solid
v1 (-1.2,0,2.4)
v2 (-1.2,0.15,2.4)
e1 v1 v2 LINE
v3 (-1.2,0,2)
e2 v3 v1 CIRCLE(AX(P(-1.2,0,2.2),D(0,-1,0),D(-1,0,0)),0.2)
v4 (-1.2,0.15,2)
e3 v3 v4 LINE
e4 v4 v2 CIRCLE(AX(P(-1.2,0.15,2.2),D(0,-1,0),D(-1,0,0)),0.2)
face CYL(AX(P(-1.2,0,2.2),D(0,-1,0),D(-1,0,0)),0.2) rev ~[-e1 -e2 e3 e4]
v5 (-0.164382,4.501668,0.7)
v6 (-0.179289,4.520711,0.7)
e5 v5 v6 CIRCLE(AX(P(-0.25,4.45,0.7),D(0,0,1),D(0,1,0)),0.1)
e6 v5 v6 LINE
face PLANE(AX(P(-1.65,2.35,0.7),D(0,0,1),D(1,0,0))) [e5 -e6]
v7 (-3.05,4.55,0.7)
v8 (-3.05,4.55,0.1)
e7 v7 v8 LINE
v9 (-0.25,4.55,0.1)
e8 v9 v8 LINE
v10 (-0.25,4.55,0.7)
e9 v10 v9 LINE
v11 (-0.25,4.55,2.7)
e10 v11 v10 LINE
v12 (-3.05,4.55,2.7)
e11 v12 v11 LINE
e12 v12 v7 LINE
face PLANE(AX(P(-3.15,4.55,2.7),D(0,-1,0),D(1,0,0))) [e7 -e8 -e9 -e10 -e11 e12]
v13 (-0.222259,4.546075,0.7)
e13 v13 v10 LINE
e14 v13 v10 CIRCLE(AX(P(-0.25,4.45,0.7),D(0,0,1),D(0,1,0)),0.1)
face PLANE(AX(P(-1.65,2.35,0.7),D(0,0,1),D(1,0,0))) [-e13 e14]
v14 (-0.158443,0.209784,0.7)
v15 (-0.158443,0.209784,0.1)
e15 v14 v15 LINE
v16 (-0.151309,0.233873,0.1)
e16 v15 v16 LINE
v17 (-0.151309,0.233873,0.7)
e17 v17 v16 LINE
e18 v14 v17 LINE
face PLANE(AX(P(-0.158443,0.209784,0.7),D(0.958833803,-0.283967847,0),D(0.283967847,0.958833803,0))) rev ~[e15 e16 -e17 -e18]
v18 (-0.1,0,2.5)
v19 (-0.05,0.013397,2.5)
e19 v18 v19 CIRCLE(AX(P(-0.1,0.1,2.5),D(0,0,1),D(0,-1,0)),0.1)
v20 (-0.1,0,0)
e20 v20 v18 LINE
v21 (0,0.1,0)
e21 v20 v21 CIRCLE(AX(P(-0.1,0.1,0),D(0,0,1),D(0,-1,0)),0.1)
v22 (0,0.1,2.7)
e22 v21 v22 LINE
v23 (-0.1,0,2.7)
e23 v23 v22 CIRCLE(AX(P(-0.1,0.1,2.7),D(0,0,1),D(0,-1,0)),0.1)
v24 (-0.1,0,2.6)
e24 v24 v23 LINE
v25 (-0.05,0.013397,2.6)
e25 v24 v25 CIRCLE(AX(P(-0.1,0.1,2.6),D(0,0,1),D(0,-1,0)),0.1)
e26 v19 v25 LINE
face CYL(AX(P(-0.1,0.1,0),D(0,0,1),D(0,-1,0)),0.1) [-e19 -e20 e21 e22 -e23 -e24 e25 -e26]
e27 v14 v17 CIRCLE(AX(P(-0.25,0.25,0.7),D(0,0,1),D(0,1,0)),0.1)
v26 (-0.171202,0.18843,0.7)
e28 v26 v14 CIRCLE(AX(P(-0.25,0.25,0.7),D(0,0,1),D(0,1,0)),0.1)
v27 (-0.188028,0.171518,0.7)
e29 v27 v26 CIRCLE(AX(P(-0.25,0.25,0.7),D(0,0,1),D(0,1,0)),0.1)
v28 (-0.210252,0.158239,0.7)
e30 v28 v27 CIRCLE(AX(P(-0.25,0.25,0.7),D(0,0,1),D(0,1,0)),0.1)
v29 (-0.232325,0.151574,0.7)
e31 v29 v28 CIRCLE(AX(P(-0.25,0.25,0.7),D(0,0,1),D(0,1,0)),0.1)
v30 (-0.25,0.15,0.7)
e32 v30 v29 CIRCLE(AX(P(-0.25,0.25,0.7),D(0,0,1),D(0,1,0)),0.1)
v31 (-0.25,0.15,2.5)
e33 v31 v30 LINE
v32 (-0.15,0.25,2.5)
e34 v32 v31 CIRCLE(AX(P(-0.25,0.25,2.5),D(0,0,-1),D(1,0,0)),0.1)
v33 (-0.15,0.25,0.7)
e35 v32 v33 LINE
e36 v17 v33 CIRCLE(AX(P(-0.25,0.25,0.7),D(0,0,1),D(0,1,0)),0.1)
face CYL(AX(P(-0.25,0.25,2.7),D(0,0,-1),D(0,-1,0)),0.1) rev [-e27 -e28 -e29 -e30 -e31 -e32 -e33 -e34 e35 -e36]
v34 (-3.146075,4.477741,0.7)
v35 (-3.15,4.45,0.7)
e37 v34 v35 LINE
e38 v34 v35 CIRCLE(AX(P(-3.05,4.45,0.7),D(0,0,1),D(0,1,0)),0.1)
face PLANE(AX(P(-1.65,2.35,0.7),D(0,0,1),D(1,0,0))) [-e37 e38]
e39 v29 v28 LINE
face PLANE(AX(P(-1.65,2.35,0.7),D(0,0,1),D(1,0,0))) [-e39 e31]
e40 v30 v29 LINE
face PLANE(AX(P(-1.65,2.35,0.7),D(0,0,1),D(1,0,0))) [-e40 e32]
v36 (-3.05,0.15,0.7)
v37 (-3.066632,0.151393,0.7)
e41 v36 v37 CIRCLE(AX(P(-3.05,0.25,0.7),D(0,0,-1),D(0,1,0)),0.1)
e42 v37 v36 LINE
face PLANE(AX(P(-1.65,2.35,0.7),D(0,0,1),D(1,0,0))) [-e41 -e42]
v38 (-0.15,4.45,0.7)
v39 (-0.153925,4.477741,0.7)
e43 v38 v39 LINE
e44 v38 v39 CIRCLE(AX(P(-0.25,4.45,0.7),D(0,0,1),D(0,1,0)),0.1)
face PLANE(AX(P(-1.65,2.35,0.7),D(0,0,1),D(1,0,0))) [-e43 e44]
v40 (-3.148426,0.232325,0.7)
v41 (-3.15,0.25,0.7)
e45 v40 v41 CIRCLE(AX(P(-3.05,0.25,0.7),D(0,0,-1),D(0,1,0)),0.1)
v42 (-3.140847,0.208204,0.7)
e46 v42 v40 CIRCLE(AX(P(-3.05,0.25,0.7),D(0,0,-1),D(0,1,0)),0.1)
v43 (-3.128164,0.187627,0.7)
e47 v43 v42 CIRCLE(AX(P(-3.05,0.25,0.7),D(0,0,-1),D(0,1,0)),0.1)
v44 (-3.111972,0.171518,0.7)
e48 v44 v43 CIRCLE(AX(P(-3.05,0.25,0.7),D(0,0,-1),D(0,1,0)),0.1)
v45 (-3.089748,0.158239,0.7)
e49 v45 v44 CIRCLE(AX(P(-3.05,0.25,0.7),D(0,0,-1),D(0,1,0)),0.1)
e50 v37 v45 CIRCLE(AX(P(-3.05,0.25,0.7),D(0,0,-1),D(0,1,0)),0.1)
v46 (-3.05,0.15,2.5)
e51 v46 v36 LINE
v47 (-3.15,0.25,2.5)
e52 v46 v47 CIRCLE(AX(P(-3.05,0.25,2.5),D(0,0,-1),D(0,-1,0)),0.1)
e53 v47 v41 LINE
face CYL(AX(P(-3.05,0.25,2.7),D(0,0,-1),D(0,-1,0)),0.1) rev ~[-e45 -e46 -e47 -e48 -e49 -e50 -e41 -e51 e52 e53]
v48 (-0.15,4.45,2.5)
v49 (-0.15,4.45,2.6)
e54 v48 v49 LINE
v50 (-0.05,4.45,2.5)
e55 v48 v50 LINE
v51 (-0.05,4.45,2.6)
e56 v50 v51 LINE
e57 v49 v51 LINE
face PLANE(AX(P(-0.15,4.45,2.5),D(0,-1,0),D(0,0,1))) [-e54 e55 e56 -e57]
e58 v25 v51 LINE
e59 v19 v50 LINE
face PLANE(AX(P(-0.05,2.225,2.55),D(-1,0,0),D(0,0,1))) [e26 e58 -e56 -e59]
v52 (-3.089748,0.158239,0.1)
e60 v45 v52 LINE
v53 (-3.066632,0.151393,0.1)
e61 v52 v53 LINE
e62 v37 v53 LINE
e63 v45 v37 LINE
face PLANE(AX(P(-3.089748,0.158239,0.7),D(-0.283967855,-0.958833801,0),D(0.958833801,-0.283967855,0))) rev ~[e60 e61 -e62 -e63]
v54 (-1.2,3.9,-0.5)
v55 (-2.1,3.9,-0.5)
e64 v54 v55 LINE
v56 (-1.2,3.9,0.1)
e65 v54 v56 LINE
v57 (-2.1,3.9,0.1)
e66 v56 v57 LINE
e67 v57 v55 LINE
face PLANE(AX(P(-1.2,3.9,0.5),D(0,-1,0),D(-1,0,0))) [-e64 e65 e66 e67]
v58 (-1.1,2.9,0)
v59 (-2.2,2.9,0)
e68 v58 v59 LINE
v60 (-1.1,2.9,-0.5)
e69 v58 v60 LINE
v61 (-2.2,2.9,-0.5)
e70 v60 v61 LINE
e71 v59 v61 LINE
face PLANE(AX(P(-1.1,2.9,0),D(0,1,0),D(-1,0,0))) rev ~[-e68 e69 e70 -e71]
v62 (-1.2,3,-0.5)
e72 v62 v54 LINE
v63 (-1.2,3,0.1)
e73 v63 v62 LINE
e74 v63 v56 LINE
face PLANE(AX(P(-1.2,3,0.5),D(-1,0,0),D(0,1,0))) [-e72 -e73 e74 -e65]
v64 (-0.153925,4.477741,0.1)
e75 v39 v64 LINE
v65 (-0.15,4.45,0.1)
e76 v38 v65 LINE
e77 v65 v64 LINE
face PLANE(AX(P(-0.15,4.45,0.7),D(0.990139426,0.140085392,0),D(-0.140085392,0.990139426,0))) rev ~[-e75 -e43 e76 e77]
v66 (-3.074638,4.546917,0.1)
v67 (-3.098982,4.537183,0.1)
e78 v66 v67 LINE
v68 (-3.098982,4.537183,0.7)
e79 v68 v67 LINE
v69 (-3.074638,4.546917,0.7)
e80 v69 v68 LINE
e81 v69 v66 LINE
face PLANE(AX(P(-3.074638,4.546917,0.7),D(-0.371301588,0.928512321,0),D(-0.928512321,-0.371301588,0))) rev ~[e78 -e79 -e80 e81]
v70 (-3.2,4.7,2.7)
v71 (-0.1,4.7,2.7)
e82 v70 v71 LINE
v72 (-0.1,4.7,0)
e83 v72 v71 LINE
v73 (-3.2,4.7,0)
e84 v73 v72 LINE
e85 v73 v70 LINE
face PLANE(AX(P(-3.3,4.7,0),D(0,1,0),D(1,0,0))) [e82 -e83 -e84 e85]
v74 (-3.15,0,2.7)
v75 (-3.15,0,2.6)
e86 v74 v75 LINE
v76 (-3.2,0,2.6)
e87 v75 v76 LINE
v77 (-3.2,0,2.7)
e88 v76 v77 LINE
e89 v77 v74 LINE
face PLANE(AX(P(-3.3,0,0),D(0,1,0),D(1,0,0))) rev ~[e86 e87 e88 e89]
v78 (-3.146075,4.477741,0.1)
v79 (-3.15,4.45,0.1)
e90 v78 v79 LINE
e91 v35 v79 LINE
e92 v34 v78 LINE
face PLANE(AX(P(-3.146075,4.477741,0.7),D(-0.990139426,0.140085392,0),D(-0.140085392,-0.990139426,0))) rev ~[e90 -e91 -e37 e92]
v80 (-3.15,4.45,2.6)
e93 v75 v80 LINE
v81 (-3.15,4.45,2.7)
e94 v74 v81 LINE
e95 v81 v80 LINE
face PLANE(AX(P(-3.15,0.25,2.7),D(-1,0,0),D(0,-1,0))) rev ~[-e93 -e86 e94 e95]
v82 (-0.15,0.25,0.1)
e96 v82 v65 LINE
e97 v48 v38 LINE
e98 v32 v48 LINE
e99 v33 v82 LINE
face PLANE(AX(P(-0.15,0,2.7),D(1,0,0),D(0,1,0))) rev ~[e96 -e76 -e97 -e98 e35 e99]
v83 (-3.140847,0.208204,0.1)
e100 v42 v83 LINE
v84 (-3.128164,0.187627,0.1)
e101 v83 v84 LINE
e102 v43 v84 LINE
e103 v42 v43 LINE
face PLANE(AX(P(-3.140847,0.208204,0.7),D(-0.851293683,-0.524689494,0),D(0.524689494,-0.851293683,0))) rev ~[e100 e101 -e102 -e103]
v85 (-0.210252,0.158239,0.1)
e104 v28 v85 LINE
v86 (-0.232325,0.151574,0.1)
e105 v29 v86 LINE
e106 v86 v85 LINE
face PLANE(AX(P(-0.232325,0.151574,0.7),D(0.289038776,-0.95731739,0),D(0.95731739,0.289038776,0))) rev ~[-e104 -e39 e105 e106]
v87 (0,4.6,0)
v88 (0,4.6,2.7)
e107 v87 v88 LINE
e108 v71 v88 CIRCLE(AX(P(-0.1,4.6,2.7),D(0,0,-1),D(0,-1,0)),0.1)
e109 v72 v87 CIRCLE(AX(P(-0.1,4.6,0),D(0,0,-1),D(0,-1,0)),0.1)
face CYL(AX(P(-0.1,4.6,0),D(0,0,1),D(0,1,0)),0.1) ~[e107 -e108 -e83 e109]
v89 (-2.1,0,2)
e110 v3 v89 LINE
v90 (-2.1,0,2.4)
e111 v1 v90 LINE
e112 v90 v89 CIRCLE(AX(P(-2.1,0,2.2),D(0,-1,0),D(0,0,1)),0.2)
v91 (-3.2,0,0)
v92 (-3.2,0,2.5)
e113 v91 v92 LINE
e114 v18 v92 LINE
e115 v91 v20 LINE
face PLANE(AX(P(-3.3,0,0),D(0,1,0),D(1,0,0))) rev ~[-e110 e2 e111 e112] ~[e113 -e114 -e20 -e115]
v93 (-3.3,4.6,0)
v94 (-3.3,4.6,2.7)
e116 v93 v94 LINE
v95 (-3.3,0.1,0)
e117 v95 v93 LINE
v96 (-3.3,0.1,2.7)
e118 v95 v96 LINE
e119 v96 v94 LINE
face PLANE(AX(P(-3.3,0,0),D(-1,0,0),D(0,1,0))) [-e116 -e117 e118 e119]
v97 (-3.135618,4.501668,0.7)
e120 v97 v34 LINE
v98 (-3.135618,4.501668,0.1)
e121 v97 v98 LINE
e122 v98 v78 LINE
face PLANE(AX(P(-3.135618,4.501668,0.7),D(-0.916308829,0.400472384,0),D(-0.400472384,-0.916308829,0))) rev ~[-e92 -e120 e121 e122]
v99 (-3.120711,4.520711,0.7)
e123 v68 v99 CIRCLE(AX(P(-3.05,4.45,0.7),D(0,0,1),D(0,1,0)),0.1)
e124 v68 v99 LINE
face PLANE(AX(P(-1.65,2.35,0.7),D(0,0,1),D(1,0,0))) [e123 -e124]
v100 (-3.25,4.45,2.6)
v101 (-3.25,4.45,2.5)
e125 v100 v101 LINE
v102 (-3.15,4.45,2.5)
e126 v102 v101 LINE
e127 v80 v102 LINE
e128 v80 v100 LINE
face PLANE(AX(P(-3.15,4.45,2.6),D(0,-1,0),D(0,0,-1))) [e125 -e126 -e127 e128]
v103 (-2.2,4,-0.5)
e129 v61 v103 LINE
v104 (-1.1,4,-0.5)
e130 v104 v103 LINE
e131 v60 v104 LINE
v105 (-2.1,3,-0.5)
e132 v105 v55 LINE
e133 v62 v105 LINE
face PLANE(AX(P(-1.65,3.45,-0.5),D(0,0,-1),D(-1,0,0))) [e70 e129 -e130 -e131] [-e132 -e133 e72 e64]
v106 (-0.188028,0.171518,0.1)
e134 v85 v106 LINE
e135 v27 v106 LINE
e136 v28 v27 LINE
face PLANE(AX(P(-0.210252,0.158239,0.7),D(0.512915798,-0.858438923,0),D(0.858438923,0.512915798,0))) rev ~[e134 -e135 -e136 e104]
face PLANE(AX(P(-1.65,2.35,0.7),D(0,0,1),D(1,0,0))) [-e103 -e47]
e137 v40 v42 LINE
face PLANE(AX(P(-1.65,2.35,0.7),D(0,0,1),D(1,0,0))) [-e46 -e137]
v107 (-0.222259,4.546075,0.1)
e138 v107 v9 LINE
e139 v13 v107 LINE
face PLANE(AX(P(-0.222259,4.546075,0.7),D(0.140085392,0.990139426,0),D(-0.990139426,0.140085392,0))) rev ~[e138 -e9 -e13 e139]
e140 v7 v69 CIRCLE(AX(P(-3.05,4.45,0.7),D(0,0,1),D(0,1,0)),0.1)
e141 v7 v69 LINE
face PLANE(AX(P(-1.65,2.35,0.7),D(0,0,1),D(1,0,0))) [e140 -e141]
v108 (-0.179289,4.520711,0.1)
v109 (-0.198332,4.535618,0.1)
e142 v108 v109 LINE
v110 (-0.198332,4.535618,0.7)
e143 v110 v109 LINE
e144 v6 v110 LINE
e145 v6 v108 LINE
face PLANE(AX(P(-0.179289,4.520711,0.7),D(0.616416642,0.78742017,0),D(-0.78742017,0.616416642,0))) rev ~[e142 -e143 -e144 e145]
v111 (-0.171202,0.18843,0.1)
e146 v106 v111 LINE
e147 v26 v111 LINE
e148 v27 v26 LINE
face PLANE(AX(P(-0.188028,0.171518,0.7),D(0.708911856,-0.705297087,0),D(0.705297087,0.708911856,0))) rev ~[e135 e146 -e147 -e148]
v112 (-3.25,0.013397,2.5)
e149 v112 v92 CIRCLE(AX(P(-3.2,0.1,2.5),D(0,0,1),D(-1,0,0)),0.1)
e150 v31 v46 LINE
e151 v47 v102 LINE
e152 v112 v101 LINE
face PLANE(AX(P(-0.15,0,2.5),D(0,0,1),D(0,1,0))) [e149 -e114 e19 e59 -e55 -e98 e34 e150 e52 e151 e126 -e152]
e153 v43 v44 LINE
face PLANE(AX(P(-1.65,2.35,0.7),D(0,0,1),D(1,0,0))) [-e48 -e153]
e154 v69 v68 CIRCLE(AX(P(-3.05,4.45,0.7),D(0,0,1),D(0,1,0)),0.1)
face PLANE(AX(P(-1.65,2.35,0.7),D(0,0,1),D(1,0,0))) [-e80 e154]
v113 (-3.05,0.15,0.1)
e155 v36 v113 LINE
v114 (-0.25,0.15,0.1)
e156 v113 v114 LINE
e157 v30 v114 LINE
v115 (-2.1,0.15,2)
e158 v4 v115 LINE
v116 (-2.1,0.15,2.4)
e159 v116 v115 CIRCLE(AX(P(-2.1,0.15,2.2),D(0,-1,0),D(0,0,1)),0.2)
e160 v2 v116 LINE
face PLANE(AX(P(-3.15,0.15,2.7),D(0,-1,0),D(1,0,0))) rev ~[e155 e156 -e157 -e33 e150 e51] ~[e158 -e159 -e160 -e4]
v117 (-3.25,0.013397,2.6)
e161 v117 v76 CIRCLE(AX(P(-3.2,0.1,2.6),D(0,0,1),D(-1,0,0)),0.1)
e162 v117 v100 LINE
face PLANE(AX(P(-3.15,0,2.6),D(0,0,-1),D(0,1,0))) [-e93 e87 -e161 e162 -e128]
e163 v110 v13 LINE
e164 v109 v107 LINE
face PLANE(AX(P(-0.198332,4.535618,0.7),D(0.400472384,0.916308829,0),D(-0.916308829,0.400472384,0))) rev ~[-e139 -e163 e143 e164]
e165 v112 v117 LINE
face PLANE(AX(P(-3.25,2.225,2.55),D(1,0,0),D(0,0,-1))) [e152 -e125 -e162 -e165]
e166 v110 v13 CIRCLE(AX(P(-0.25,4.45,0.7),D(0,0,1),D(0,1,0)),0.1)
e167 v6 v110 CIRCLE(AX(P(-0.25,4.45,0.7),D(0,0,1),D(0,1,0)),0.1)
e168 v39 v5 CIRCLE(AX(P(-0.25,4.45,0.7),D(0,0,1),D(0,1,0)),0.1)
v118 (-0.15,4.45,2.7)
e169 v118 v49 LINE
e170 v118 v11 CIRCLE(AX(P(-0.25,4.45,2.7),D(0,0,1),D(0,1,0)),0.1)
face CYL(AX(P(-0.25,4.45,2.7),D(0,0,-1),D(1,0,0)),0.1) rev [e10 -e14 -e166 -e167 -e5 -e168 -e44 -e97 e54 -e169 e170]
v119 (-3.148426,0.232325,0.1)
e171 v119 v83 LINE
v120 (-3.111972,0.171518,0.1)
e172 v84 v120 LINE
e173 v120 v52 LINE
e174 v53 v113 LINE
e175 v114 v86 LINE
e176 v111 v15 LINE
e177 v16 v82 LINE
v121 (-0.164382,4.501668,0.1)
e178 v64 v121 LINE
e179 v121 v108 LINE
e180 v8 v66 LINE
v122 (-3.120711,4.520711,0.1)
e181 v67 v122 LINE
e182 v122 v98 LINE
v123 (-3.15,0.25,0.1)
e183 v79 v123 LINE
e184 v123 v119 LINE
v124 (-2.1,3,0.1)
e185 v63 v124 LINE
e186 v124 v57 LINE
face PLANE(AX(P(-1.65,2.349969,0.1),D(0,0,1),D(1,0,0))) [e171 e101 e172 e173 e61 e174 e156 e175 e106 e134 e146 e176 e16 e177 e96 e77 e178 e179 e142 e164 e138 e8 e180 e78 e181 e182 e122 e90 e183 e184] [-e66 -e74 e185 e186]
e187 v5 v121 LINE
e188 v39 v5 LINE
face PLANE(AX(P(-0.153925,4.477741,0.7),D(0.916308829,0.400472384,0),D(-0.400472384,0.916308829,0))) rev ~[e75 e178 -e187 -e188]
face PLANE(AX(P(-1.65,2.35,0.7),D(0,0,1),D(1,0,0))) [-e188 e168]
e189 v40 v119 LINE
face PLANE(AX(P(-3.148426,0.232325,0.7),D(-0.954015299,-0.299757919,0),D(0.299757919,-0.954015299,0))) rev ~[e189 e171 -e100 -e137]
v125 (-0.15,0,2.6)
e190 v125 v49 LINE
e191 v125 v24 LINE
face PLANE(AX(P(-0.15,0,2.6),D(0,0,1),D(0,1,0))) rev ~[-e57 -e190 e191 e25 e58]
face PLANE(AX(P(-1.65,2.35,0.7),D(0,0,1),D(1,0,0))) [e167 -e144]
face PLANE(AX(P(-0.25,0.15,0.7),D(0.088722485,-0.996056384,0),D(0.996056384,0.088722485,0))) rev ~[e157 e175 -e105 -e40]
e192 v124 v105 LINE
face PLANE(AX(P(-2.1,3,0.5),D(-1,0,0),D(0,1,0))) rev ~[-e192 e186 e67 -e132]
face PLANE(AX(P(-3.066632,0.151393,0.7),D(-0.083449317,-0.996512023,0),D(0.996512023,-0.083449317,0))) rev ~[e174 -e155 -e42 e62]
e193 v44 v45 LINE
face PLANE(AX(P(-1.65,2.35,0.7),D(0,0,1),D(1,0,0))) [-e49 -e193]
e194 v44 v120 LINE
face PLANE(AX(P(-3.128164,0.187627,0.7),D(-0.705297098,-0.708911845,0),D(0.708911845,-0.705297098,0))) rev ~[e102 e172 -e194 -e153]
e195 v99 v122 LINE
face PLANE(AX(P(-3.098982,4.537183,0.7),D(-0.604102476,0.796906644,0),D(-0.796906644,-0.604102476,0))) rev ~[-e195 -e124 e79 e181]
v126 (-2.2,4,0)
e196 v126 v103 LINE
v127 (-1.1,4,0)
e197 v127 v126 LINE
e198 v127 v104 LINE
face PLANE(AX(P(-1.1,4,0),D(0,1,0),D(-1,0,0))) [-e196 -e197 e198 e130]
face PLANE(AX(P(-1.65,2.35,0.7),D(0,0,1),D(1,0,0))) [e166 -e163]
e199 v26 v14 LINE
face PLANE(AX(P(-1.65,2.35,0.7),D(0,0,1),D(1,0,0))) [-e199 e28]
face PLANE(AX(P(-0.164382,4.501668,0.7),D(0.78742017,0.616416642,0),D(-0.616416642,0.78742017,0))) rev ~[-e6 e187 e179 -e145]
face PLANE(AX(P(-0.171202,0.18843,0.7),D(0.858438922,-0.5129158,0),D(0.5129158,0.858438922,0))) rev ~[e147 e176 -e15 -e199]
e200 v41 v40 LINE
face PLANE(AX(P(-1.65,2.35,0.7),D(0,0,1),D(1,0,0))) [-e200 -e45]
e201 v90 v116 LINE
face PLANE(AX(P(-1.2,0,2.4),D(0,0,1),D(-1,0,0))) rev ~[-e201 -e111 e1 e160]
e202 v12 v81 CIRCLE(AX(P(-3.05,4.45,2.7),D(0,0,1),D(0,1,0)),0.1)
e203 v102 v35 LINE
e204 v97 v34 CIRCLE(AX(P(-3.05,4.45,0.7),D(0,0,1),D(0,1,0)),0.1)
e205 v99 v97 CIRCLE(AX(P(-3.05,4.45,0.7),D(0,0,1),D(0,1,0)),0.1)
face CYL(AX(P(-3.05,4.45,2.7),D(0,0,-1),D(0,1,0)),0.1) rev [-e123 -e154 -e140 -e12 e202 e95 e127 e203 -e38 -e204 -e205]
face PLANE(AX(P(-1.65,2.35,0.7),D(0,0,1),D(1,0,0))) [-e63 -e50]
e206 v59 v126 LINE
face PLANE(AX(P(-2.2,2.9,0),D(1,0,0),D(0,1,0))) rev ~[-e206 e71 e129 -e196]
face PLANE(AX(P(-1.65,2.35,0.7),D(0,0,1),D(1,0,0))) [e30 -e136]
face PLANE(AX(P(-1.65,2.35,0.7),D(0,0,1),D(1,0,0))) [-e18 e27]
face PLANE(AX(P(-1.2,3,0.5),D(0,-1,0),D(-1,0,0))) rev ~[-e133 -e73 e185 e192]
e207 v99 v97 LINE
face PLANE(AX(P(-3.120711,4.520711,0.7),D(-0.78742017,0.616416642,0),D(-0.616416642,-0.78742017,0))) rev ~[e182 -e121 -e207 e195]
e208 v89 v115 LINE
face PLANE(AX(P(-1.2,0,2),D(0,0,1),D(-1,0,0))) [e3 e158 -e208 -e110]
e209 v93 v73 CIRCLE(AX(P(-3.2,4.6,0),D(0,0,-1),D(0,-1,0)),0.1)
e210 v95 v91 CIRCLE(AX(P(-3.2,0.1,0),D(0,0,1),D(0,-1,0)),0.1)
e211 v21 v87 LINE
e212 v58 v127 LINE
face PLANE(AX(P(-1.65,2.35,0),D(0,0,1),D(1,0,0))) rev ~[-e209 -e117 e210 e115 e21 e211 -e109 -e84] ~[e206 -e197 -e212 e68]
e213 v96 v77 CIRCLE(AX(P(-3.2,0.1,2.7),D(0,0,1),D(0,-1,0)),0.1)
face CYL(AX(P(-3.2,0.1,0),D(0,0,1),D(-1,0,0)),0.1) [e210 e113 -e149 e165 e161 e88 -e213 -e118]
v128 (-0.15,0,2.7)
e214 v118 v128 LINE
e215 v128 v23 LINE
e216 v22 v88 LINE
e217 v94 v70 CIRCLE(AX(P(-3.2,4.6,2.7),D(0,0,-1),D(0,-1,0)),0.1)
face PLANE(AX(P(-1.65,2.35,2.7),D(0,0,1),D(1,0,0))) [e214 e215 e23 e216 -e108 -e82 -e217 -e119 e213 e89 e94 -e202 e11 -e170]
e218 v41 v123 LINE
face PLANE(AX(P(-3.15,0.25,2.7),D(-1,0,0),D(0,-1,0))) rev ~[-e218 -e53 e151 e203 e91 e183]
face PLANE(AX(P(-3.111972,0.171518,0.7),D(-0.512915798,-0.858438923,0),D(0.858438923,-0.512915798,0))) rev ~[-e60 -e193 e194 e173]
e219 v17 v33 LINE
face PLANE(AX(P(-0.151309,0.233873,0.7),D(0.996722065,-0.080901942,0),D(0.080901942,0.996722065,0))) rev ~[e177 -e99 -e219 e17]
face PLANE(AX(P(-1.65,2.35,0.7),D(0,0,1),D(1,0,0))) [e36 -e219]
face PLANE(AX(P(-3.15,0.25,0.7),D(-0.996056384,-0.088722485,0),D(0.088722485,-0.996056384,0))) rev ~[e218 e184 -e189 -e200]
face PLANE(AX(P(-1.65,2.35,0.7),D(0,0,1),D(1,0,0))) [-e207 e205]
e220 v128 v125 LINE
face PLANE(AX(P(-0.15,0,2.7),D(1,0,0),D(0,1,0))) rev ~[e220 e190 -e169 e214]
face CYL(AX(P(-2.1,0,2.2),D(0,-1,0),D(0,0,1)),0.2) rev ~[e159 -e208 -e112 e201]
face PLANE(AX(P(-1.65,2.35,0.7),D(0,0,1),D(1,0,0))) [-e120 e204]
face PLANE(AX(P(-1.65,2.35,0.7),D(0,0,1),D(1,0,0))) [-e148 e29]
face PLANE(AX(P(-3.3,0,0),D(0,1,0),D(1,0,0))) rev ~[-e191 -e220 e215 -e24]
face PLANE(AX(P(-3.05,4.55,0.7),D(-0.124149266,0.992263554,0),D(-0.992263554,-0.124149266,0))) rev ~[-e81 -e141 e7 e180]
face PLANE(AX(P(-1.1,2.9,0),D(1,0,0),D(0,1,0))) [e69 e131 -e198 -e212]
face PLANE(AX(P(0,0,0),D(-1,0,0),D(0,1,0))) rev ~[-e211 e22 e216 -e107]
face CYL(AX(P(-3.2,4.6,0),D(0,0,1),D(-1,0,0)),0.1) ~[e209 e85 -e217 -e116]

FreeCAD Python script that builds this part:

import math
import FreeCAD as App
import Part
import Sketcher
from FreeCAD import Vector


def edges_at(feature, points):
    """Names of the edges that pass closest to the given points."""
    edges = feature.Shape.Edges
    near = lambda p: min(range(len(edges)), key=lambda i: edges[i].distToShape(Part.Vertex(*p))[0])
    return sorted({f"Edge{near(p) + 1}" for p in points})

doc = App.newDocument("Part")
body = doc.addObject("PartDesign::Body", "Body")

sketch1 = body.newObject("Sketcher::SketchObject", "Sketch")
sketch1.AttachmentSupport = (doc.getObject("XY_Plane"), [""])
sketch1.MapMode = "FlatFace"
sketch1.addGeometry([
    Part.LineSegment(Vector(-3.3, 4.7, 0), Vector(-3.3, 0, 0)),
    Part.LineSegment(Vector(-3.3, 0, 0), Vector(0, 0, 0)),
    Part.LineSegment(Vector(0, 0, 0), Vector(0, 4.7, 0)),
    Part.LineSegment(Vector(0, 4.7, 0), Vector(-3.3, 4.7, 0)),
], False)
sketch1.addConstraint([
    Sketcher.Constraint("Coincident", 0, 2, 1, 1),
    Sketcher.Constraint("Coincident", 1, 2, 2, 1),
    Sketcher.Constraint("Coincident", 2, 2, 3, 1),
    Sketcher.Constraint("Coincident", 3, 2, 0, 1),
    Sketcher.Constraint("Vertical", 0),
    Sketcher.Constraint("Horizontal", 1),
    Sketcher.Constraint("Vertical", 2),
    Sketcher.Constraint("Horizontal", 3),
    Sketcher.Constraint("Coincident", 1, 2, -1, 1),
    Sketcher.Constraint("DistanceX", 1, 1, 1, 2, 3.3),
    Sketcher.Constraint("DistanceY", 0, 2, 0, 1, 4.7),
])
pad1 = body.newObject("PartDesign::Pad", "Pad")
pad1.Profile = sketch1
pad1.Length = 2.7
doc.recompute()

fillet = body.newObject("PartDesign::Fillet", "Fillet")
fillet.Base = (pad1, edges_at(pad1, [(-3.3, 4.7, 1.35)]))
fillet.Radius = 0.1
doc.recompute()

fillet2 = body.newObject("PartDesign::Fillet", "Fillet001")
fillet2.Base = (fillet, edges_at(fillet, [(0, 0, 1.35), (-3.3, 0, 1.35), (0, 4.7, 1.35)]))
fillet2.Radius = 0.1

sketch2 = body.newObject("Sketcher::SketchObject", "Sketch001")
sketch2.AttachmentSupport = (doc.getObject("XY_Plane"), [""])
sketch2.MapMode = "FlatFace"
sketch2.AttachmentOffset = App.Placement(Vector(0, 0, 2.7), App.Rotation())
sketch2.addGeometry([
    Part.LineSegment(Vector(-3.15, 4.55, 0), Vector(-3.15, 0.15, 0)),
    Part.LineSegment(Vector(-3.15, 0.15, 0), Vector(-0.15, 0.15, 0)),
    Part.LineSegment(Vector(-0.15, 0.15, 0), Vector(-0.15, 4.55, 0)),
    Part.LineSegment(Vector(-0.15, 4.55, 0), Vector(-3.15, 4.55, 0)),
], False)
sketch2.addConstraint([
    Sketcher.Constraint("Coincident", 0, 2, 1, 1),
    Sketcher.Constraint("Coincident", 1, 2, 2, 1),
    Sketcher.Constraint("Coincident", 2, 2, 3, 1),
    Sketcher.Constraint("Coincident", 3, 2, 0, 1),
    Sketcher.Constraint("Vertical", 0),
    Sketcher.Constraint("Horizontal", 1),
    Sketcher.Constraint("Vertical", 2),
    Sketcher.Constraint("Horizontal", 3),
    Sketcher.Constraint("DistanceX", 1, 1, 1, 2, 3.0),
    Sketcher.Constraint("DistanceY", 0, 2, 0, 1, 4.4),
    Sketcher.Constraint("DistanceX", 0, 2, -1, 1, 3.15),
    Sketcher.Constraint("DistanceY", -1, 1, 0, 2, 0.15),
])
pocket1 = body.newObject("PartDesign::Pocket", "Pocket")
pocket1.Profile = sketch2
pocket1.Length = 2
doc.recompute()

fillet3 = body.newObject("PartDesign::Fillet", "Fillet002")
fillet3.Base = (pocket1, edges_at(pocket1, [
    (-0.15, 0.15, 1.7),
    (-3.15, 0.15, 1.7),
    (-3.15, 4.55, 1.7),
    (-0.15, 4.55, 1.7),
]))
fillet3.Radius = 0.1

sketch3 = body.newObject("Sketcher::SketchObject", "Sketch002")
sketch3.AttachmentSupport = (doc.getObject("XY_Plane"), [""])
sketch3.MapMode = "FlatFace"
sketch3.addGeometry([
    Part.LineSegment(Vector(-1.1, 4, 0), Vector(-1.1, 2.9, 0)),
    Part.LineSegment(Vector(-1.1, 2.9, 0), Vector(-2.2, 2.9, 0)),
    Part.LineSegment(Vector(-2.2, 2.9, 0), Vector(-2.2, 4, 0)),
    Part.LineSegment(Vector(-2.2, 4, 0), Vector(-1.1, 4, 0)),
    Part.LineSegment(Vector(-2.1, 3, 0), Vector(-1.2, 3, 0)),
    Part.LineSegment(Vector(-1.2, 3, 0), Vector(-1.2, 3.9, 0)),
    Part.LineSegment(Vector(-1.2, 3.9, 0), Vector(-2.1, 3.9, 0)),
    Part.LineSegment(Vector(-2.1, 3.9, 0), Vector(-2.1, 3, 0)),
], False)
sketch3.addConstraint([
    Sketcher.Constraint("Coincident", 0, 2, 1, 1),
    Sketcher.Constraint("Coincident", 1, 2, 2, 1),
    Sketcher.Constraint("Coincident", 2, 2, 3, 1),
    Sketcher.Constraint("Coincident", 3, 2, 0, 1),
    Sketcher.Constraint("Coincident", 4, 2, 5, 1),
    Sketcher.Constraint("Coincident", 5, 2, 6, 1),
    Sketcher.Constraint("Coincident", 6, 2, 7, 1),
    Sketcher.Constraint("Coincident", 7, 2, 4, 1),
    Sketcher.Constraint("Vertical", 0),
    Sketcher.Constraint("Horizontal", 1),
    Sketcher.Constraint("Vertical", 2),
    Sketcher.Constraint("Horizontal", 3),
    Sketcher.Constraint("Horizontal", 4),
    Sketcher.Constraint("Vertical", 5),
    Sketcher.Constraint("Horizontal", 6),
    Sketcher.Constraint("Vertical", 7),
    Sketcher.Constraint("Equal", 3, 0),
    Sketcher.Constraint("Equal", 6, 5),
    Sketcher.Constraint("DistanceX", 1, 2, 1, 1, 1.1),
    Sketcher.Constraint("DistanceX", 4, 1, 4, 2, 0.9),
    Sketcher.Constraint("DistanceY", -1, 1, 2, 2, 4.0),
    Sketcher.Constraint("DistanceY", -1, 1, 4, 2, 3.0),
    Sketcher.Constraint("DistanceX", 1, 2, 4, 2, 1.0),
    Sketcher.Constraint("DistanceX", 0, 2, -1, 1, 1.1),
])
pad2 = body.newObject("PartDesign::Pad", "Pad001")
pad2.Profile = sketch3
pad2.Length = 0.5
pad2.Reversed = True

sketch4 = body.newObject("Sketcher::SketchObject", "Sketch003")
sketch4.AttachmentSupport = (doc.getObject("XY_Plane"), [""])
sketch4.MapMode = "FlatFace"
sketch4.addGeometry([
    Part.LineSegment(Vector(-1.2, 3.9, 0), Vector(-1.2, 3, 0)),
    Part.LineSegment(Vector(-1.2, 3, 0), Vector(-2.1, 3, 0)),
    Part.LineSegment(Vector(-2.1, 3, 0), Vector(-2.1, 3.9, 0)),
    Part.LineSegment(Vector(-2.1, 3.9, 0), Vector(-1.2, 3.9, 0)),
], False)
sketch4.addConstraint([
    Sketcher.Constraint("Coincident", 0, 2, 1, 1),
    Sketcher.Constraint("Coincident", 1, 2, 2, 1),
    Sketcher.Constraint("Coincident", 2, 2, 3, 1),
    Sketcher.Constraint("Coincident", 3, 2, 0, 1),
    Sketcher.Constraint("Vertical", 0),
    Sketcher.Constraint("Horizontal", 1),
    Sketcher.Constraint("Vertical", 2),
    Sketcher.Constraint("Horizontal", 3),
    Sketcher.Constraint("Equal", 3, 0),
    Sketcher.Constraint("DistanceX", 1, 2, 1, 1, 0.9),
    Sketcher.Constraint("DistanceY", -1, 1, 0, 2, 3.0),
    Sketcher.Constraint("DistanceX", 0, 2, -1, 1, 1.2),
])
pocket2 = body.newObject("PartDesign::Pocket", "Pocket001")
pocket2.Profile = sketch4
pocket2.Length = 0.5
pocket2.Reversed = True

sketch5 = body.newObject("Sketcher::SketchObject", "Sketch004")
sketch5.AttachmentSupport = (doc.getObject("XY_Plane"), [""])
sketch5.MapMode = "FlatFace"
sketch5.AttachmentOffset = App.Placement(Vector(0, 0, 2.7), App.Rotation())
sketch5.addGeometry([
    Part.LineSegment(Vector(-3.15, 0.25, 0), Vector(-3.15, 0, 0)),
    Part.LineSegment(Vector(-3.15, 0, 0), Vector(-0.15, 0, 0)),
    Part.LineSegment(Vector(-0.15, 0, 0), Vector(-0.15, 0.25, 0)),
    Part.LineSegment(Vector(-0.15, 0.25, 0), Vector(-0.153597, 0.22342, 0)),
    Part.LineSegment(Vector(-0.153597, 0.22342, 0), Vector(-0.163815, 0.199284, 0)),
    Part.LineSegment(Vector(-0.163815, 0.199284, 0), Vector(-0.179289, 0.179289, 0)),
    Part.LineSegment(Vector(-0.179289, 0.179289, 0), Vector(-0.199284, 0.163815, 0)),
    Part.LineSegment(Vector(-0.199284, 0.163815, 0), Vector(-0.22342, 0.153597, 0)),
    Part.LineSegment(Vector(-0.22342, 0.153597, 0), Vector(-0.25, 0.15, 0)),
    Part.LineSegment(Vector(-0.25, 0.15, 0), Vector(-3.05, 0.15, 0)),
    Part.LineSegment(Vector(-3.05, 0.15, 0), Vector(-3.075883, 0.153408, 0)),
    Part.LineSegment(Vector(-3.075883, 0.153408, 0), Vector(-3.101785, 0.164453, 0)),
    Part.LineSegment(Vector(-3.101785, 0.164453, 0), Vector(-3.120711, 0.179289, 0)),
    Part.LineSegment(Vector(-3.120711, 0.179289, 0), Vector(-3.136185, 0.199284, 0)),
    Part.LineSegment(Vector(-3.136185, 0.199284, 0), Vector(-3.146403, 0.22342, 0)),
    Part.LineSegment(Vector(-3.146403, 0.22342, 0), Vector(-3.15, 0.25, 0)),
], False)
sketch5.addConstraint([
    Sketcher.Constraint("Coincident", 0, 2, 1, 1),
    Sketcher.Constraint("Coincident", 1, 2, 2, 1),
    Sketcher.Constraint("Coincident", 2, 2, 3, 1),
    Sketcher.Constraint("Coincident", 3, 2, 4, 1),
    Sketcher.Constraint("Coincident", 4, 2, 5, 1),
    Sketcher.Constraint("Coincident", 5, 2, 6, 1),
    Sketcher.Constraint("Coincident", 6, 2, 7, 1),
    Sketcher.Constraint("Coincident", 7, 2, 8, 1),
    Sketcher.Constraint("Coincident", 8, 2, 9, 1),
    Sketcher.Constraint("Coincident", 9, 2, 10, 1),
    Sketcher.Constraint("Coincident", 10, 2, 11, 1),
    Sketcher.Constraint("Coincident", 11, 2, 12, 1),
    Sketcher.Constraint("Coincident", 12, 2, 13, 1),
    Sketcher.Constraint("Coincident", 13, 2, 14, 1),
    Sketcher.Constraint("Coincident", 14, 2, 15, 1),
    Sketcher.Constraint("Coincident", 15, 2, 0, 1),
    Sketcher.Constraint("Vertical", 0),
    Sketcher.Constraint("Horizontal", 1),
    Sketcher.Constraint("Vertical", 2),
    Sketcher.Constraint("Horizontal", 9),
    Sketcher.Constraint("PointOnObject", 0, 2, -1),
    Sketcher.Constraint("Perpendicular", 6, 13),
    Sketcher.Constraint("Perpendicular", 7, 14),
    Sketcher.Constraint("Perpendicular", 8, 15),
    Sketcher.Constraint("Horizontal", 5, 2, 12, 2),
    Sketcher.Constraint("Horizontal", 4, 2, 13, 2),
    Sketcher.Constraint("Horizontal", 3, 2, 14, 2),
    Sketcher.Constraint("Horizontal", 2, 2, 15, 2),
    Sketcher.Constraint("Equal", 5, 6),
    Sketcher.Constraint("Equal", 4, 7),
    Sketcher.Constraint("Equal", 3, 8),
    Sketcher.Constraint("Equal", 6, 13),
    Sketcher.Constraint("Equal", 7, 14),
    Sketcher.Constraint("Equal", 8, 15),
    Sketcher.Constraint("DistanceX", 1, 1, 1, 2, 3.0),
    Sketcher.Constraint("DistanceX", 9, 2, 9, 1, 2.8),
    Sketcher.Constraint("DistanceY", 0, 2, 0, 1, 0.25),
    Sketcher.Constraint("DistanceX", 0, 2, 9, 2, 0.1),
    Sketcher.Constraint("DistanceX", 0, 2, -1, 1, 3.15),
    Sketcher.Constraint("DistanceX", 10, 2, 6, 2, 2.876599),
    Sketcher.Constraint("DistanceX", 13, 2, 11, 2, 0.0344),
    Sketcher.Constraint("Distance", 4, 0.02621),
    Sketcher.Constraint("Distance", 11, 0.028159),
    Sketcher.Constraint("DistanceY", -1, 1, 3, 2, 0.22342),
    Sketcher.Constraint("DistanceX", 5, 2, -1, 1, 0.179289),
    Sketcher.Constraint("DistanceX", 6, 2, 4, 2, 0.035469),
    Sketcher.Constraint("DistanceY", 10, 2, 7, 2, 0.00019),
    Sketcher.Constraint("DistanceY", 10, 2, 12, 2, 0.025882),
])
pocket3 = body.newObject("PartDesign::Pocket", "Pocket002")
pocket3.Profile = sketch5
pocket3.Length = 0.2

sketch6 = body.newObject("Sketcher::SketchObject", "Sketch005")
sketch6.AttachmentSupport = (doc.getObject("YZ_Plane"), [""])
sketch6.MapMode = "FlatFace"
sketch6.AttachmentOffset = App.Placement(Vector(0, 0, -3.15), App.Rotation())
sketch6.addGeometry([
    Part.LineSegment(Vector(4.45, 2.6, 0), Vector(0, 2.6, 0)),
    Part.LineSegment(Vector(0, 2.6, 0), Vector(0, 2.5, 0)),
    Part.LineSegment(Vector(0, 2.5, 0), Vector(4.45, 2.5, 0)),
    Part.LineSegment(Vector(4.45, 2.5, 0), Vector(4.45, 2.6, 0)),
], False)
sketch6.addConstraint([
    Sketcher.Constraint("Coincident", 0, 2, 1, 1),
    Sketcher.Constraint("Coincident", 1, 2, 2, 1),
    Sketcher.Constraint("Coincident", 2, 2, 3, 1),
    Sketcher.Constraint("Coincident", 3, 2, 0, 1),
    Sketcher.Constraint("Horizontal", 0),
    Sketcher.Constraint("Vertical", 1),
    Sketcher.Constraint("Horizontal", 2),
    Sketcher.Constraint("Vertical", 3),
    Sketcher.Constraint("PointOnObject", 0, 2, -2),
    Sketcher.Constraint("DistanceY", 1, 2, 1, 1, 0.1),
    Sketcher.Constraint("DistanceX", 0, 2, 0, 1, 4.45),
    Sketcher.Constraint("DistanceY", -1, 1, 0, 2, 2.6),
])
pocket4 = body.newObject("PartDesign::Pocket", "Pocket003")
pocket4.Profile = sketch6
pocket4.Length = 0.1

sketch7 = body.newObject("Sketcher::SketchObject", "Sketch006")
sketch7.AttachmentSupport = (doc.getObject("YZ_Plane"), [""])
sketch7.MapMode = "FlatFace"
sketch7.AttachmentOffset = App.Placement(Vector(0, 0, -0.15), App.Rotation())
sketch7.addGeometry([
    Part.LineSegment(Vector(4.45, 2.5, 0), Vector(0, 2.5, 0)),
    Part.LineSegment(Vector(0, 2.5, 0), Vector(0, 2.6, 0)),
    Part.LineSegment(Vector(0, 2.6, 0), Vector(4.45, 2.6, 0)),
    Part.LineSegment(Vector(4.45, 2.6, 0), Vector(4.45, 2.5, 0)),
], False)
sketch7.addConstraint([
    Sketcher.Constraint("Coincident", 0, 2, 1, 1),
    Sketcher.Constraint("Coincident", 1, 2, 2, 1),
    Sketcher.Constraint("Coincident", 2, 2, 3, 1),
    Sketcher.Constraint("Coincident", 3, 2, 0, 1),
    Sketcher.Constraint("Horizontal", 0),
    Sketcher.Constraint("Vertical", 1),
    Sketcher.Constraint("Horizontal", 2),
    Sketcher.Constraint("Vertical", 3),
    Sketcher.Constraint("PointOnObject", 0, 2, -2),
    Sketcher.Constraint("DistanceY", 1, 1, 1, 2, 0.1),
    Sketcher.Constraint("DistanceX", 0, 2, 0, 1, 4.45),
    Sketcher.Constraint("DistanceY", -1, 1, 0, 2, 2.5),
])
pocket5 = body.newObject("PartDesign::Pocket", "Pocket004")
pocket5.Profile = sketch7
pocket5.Length = 0.1
pocket5.Reversed = True

sketch8 = body.newObject("Sketcher::SketchObject", "Sketch007")
sketch8.AttachmentSupport = (doc.getObject("XY_Plane"), [""])
sketch8.MapMode = "FlatFace"
sketch8.AttachmentOffset = App.Placement(Vector(0, 0, 0.5), App.Rotation())
sketch8.addGeometry([
    Part.LineSegment(Vector(-1.2, 3.9, 0), Vector(-1.2, 3, 0)),
    Part.LineSegment(Vector(-1.2, 3, 0), Vector(-2.1, 3, 0)),
    Part.LineSegment(Vector(-2.1, 3, 0), Vector(-2.1, 3.9, 0)),
    Part.LineSegment(Vector(-2.1, 3.9, 0), Vector(-1.2, 3.9, 0)),
], False)
sketch8.addConstraint([
    Sketcher.Constraint("Coincident", 0, 2, 1, 1),
    Sketcher.Constraint("Coincident", 1, 2, 2, 1),
    Sketcher.Constraint("Coincident", 2, 2, 3, 1),
    Sketcher.Constraint("Coincident", 3, 2, 0, 1),
    Sketcher.Constraint("Vertical", 0),
    Sketcher.Constraint("Horizontal", 1),
    Sketcher.Constraint("Vertical", 2),
    Sketcher.Constraint("Horizontal", 3),
    Sketcher.Constraint("Equal", 3, 0),
    Sketcher.Constraint("DistanceX", 1, 2, 1, 1, 0.9),
    Sketcher.Constraint("DistanceY", -1, 1, 0, 2, 3.0),
    Sketcher.Constraint("DistanceX", 0, 2, -1, 1, 1.2),
])
pocket6 = body.newObject("PartDesign::Pocket", "Pocket005")
pocket6.Profile = sketch8
pocket6.Length = 1
pocket6.Reversed = True

sketch9 = body.newObject("Sketcher::SketchObject", "Sketch008")
sketch9.AttachmentSupport = (doc.getObject("XZ_Plane"), [""])
sketch9.MapMode = "FlatFace"
sketch9.addGeometry([
    Part.ArcOfCircle(Part.Circle(Vector(-2.1, 2.2, 0), Vector(0, 0, 1), 0.2), math.radians(90), math.radians(270)),
    Part.LineSegment(Vector(-2.1, 2, 0), Vector(-1.2, 2, 0)),
    Part.ArcOfCircle(Part.Circle(Vector(-1.2, 2.2, 0), Vector(0, 0, 1), 0.2), math.radians(-90), math.radians(90)),
    Part.LineSegment(Vector(-1.2, 2.4, 0), Vector(-2.1, 2.4, 0)),
], False)
sketch9.addConstraint([
    Sketcher.Constraint("Tangent", 0, 2, 1, 1),
    Sketcher.Constraint("Tangent", 1, 2, 2, 1),
    Sketcher.Constraint("Tangent", 2, 2, 3, 1),
    Sketcher.Constraint("Tangent", 3, 2, 0, 1),
    Sketcher.Constraint("Horizontal", 1),
    Sketcher.Constraint("Horizontal", 3),
    Sketcher.Constraint("Radius", 0, 0.2),
    Sketcher.Constraint("DistanceX", 1, 1, 1, 2, 0.9),
    Sketcher.Constraint("DistanceY", -1, 1, 0, 2, 2.0),
    Sketcher.Constraint("DistanceX", 0, 3, -1, 1, 2.1),
])
pocket7 = body.newObject("PartDesign::Pocket", "Pocket006")
pocket7.Profile = sketch9
pocket7.Length = 1.1

sketch10 = body.newObject("Sketcher::SketchObject", "Sketch009")
sketch10.AttachmentSupport = (doc.getObject("XY_Plane"), [""])
sketch10.MapMode = "FlatFace"
sketch10.AttachmentOffset = App.Placement(Vector(0, 0, 0.7), App.Rotation())
sketch10.addGeometry([
    Part.LineSegment(Vector(-3.05, 4.55, 0), Vector(-3.074638, 4.546917, 0)),
    Part.LineSegment(Vector(-3.074638, 4.546917, 0), Vector(-3.098982, 4.537183, 0)),
    Part.LineSegment(Vector(-3.098982, 4.537183, 0), Vector(-3.120711, 4.520711, 0)),
    Part.LineSegment(Vector(-3.120711, 4.520711, 0), Vector(-3.135618, 4.501668, 0)),
    Part.LineSegment(Vector(-3.135618, 4.501668, 0), Vector(-3.146075, 4.477741, 0)),
    Part.LineSegment(Vector(-3.146075, 4.477741, 0), Vector(-3.15, 4.45, 0)),
    Part.LineSegment(Vector(-3.15, 4.45, 0), Vector(-3.15, 0.25, 0)),
    Part.LineSegment(Vector(-3.15, 0.25, 0), Vector(-3.148426, 0.232325, 0)),
    Part.LineSegment(Vector(-3.148426, 0.232325, 0), Vector(-3.140847, 0.208204, 0)),
    Part.LineSegment(Vector(-3.140847, 0.208204, 0), Vector(-3.128164, 0.187627, 0)),
    Part.LineSegment(Vector(-3.128164, 0.187627, 0), Vector(-3.111972, 0.171518, 0)),
    Part.LineSegment(Vector(-3.111972, 0.171518, 0), Vector(-3.089748, 0.158239, 0)),
    Part.LineSegment(Vector(-3.089748, 0.158239, 0), Vector(-3.066632, 0.151393, 0)),
    Part.LineSegment(Vector(-3.066632, 0.151393, 0), Vector(-3.05, 0.15, 0)),
    Part.LineSegment(Vector(-3.05, 0.15, 0), Vector(-0.25, 0.15, 0)),
    Part.LineSegment(Vector(-0.25, 0.15, 0), Vector(-0.232325, 0.151574, 0)),
    Part.LineSegment(Vector(-0.232325, 0.151574, 0), Vector(-0.210252, 0.158239, 0)),
    Part.LineSegment(Vector(-0.210252, 0.158239, 0), Vector(-0.188028, 0.171518, 0)),
    Part.LineSegment(Vector(-0.188028, 0.171518, 0), Vector(-0.171202, 0.18843, 0)),
    Part.LineSegment(Vector(-0.171202, 0.18843, 0), Vector(-0.158443, 0.209784, 0)),
    Part.LineSegment(Vector(-0.158443, 0.209784, 0), Vector(-0.151309, 0.233873, 0)),
    Part.LineSegment(Vector(-0.151309, 0.233873, 0), Vector(-0.15, 0.25, 0)),
    Part.LineSegment(Vector(-0.15, 0.25, 0), Vector(-0.15, 4.45, 0)),
    Part.LineSegment(Vector(-0.15, 4.45, 0), Vector(-0.153925, 4.477741, 0)),
    Part.LineSegment(Vector(-0.153925, 4.477741, 0), Vector(-0.164382, 4.501668, 0)),
    Part.LineSegment(Vector(-0.164382, 4.501668, 0), Vector(-0.179289, 4.520711, 0)),
    Part.LineSegment(Vector(-0.179289, 4.520711, 0), Vector(-0.198332, 4.535618, 0)),
    Part.LineSegment(Vector(-0.198332, 4.535618, 0), Vector(-0.222259, 4.546075, 0)),
    Part.LineSegment(Vector(-0.222259, 4.546075, 0), Vector(-0.25, 4.55, 0)),
    Part.LineSegment(Vector(-0.25, 4.55, 0), Vector(-3.05, 4.55, 0)),
], False)
sketch10.addConstraint([
    Sketcher.Constraint("Coincident", 0, 2, 1, 1),
    Sketcher.Constraint("Coincident", 1, 2, 2, 1),
    Sketcher.Constraint("Coincident", 2, 2, 3, 1),
    Sketcher.Constraint("Coincident", 3, 2, 4, 1),
    Sketcher.Constraint("Coincident", 4, 2, 5, 1),
    Sketcher.Constraint("Coincident", 5, 2, 6, 1),
    Sketcher.Constraint("Coincident", 6, 2, 7, 1),
    Sketcher.Constraint("Coincident", 7, 2, 8, 1),
    Sketcher.Constraint("Coincident", 8, 2, 9, 1),
    Sketcher.Constraint("Coincident", 9, 2, 10, 1),
    Sketcher.Constraint("Coincident", 10, 2, 11, 1),
    Sketcher.Constraint("Coincident", 11, 2, 12, 1),
    Sketcher.Constraint("Coincident", 12, 2, 13, 1),
    Sketcher.Constraint("Coincident", 13, 2, 14, 1),
    Sketcher.Constraint("Coincident", 14, 2, 15, 1),
    Sketcher.Constraint("Coincident", 15, 2, 16, 1),
    Sketcher.Constraint("Coincident", 16, 2, 17, 1),
    Sketcher.Constraint("Coincident", 17, 2, 18, 1),
    Sketcher.Constraint("Coincident", 18, 2, 19, 1),
    Sketcher.Constraint("Coincident", 19, 2, 20, 1),
    Sketcher.Constraint("Coincident", 20, 2, 21, 1),
    Sketcher.Constraint("Coincident", 21, 2, 22, 1),
    Sketcher.Constraint("Coincident", 22, 2, 23, 1),
    Sketcher.Constraint("Coincident", 23, 2, 24, 1),
    Sketcher.Constraint("Coincident", 24, 2, 25, 1),
    Sketcher.Constraint("Coincident", 25, 2, 26, 1),
    Sketcher.Constraint("Coincident", 26, 2, 27, 1),
    Sketcher.Constraint("Coincident", 27, 2, 28, 1),
    Sketcher.Constraint("Coincident", 28, 2, 29, 1),
    Sketcher.Constraint("Coincident", 29, 2, 0, 1),
    Sketcher.Constraint("Vertical", 6),
    Sketcher.Constraint("Horizontal", 14),
    Sketcher.Constraint("Vertical", 22),
    Sketcher.Constraint("Horizontal", 29),
    Sketcher.Constraint("Perpendicular", 7, 15),
    Sketcher.Constraint("Perpendicular", 10, 18),
    Sketcher.Constraint("Perpendicular", 11, 19),
    Sketcher.Constraint("Perpendicular", 12, 20),
    Sketcher.Constraint("Perpendicular", 3, 26),
    Sketcher.Constraint("Perpendicular", 4, 27),
    Sketcher.Constraint("Perpendicular", 5, 28),
    Sketcher.Constraint("Horizontal", 11, 2, 16, 2),
    Sketcher.Constraint("Horizontal", 10, 2, 17, 2),
    Sketcher.Constraint("Horizontal", 6, 2, 21, 2),
    Sketcher.Constraint("Horizontal", 5, 2, 22, 2),
    Sketcher.Constraint("Horizontal", 4, 2, 23, 2),
    Sketcher.Constraint("Horizontal", 3, 2, 24, 2),
    Sketcher.Constraint("Horizontal", 2, 2, 25, 2),
    Sketcher.Constraint("Vertical", 14, 2, 28, 2),
    Sketcher.Constraint("Vertical", 13, 2, 29, 2),
    Sketcher.Constraint("Equal", 7, 15),
    Sketcher.Constraint("Equal", 11, 17),
    Sketcher.Constraint("Equal", 5, 23),
    Sketcher.Constraint("Equal", 4, 24),
    Sketcher.Constraint("Equal", 3, 25),
    Sketcher.Constraint("Equal", 25, 26),
    Sketcher.Constraint("Equal", 24, 27),
    Sketcher.Constraint("Equal", 23, 28),
    Sketcher.Constraint("DistanceX", 14, 1, 14, 2, 2.8),
    Sketcher.Constraint("DistanceY", 6, 2, 6, 1, 4.2),
    Sketcher.Constraint("DistanceX", 5, 2, -1, 1, 3.15),
    Sketcher.Constraint("DistanceY", -1, 1, 5, 2, 4.45),
    Sketcher.Constraint("DistanceX", 13, 2, -1, 1, 3.05),
    Sketcher.Constraint("DistanceY", -1, 1, 13, 2, 0.15),
    Sketcher.Constraint("DistanceX", 21, 2, -1, 1, 0.15),
    Sketcher.Constraint("DistanceY", 9, 2, 7, 2, 0.044698),
    Sketcher.Constraint("DistanceX", 8, 2, 11, 2, 0.051099),
    Sketcher.Constraint("DistanceY", 15, 2, 20, 2, 0.082298),
    Sketcher.Constraint("DistanceX", 1, 2, 24, 2, 2.9346),
    Sketcher.Constraint("DistanceY", 26, 2, 0, 2, 0.0113),
    Sketcher.Constraint("Distance", 0, 0.02483),
    Sketcher.Constraint("Distance", 1, 0.026218),
    Sketcher.Constraint("Distance", 9, 0.024171),
    Sketcher.Constraint("Distance", 10, 0.022841),
    Sketcher.Constraint("Distance", 11, 0.025889),
    Sketcher.Constraint("Distance", 12, 0.024109),
    Sketcher.Constraint("Distance", 13, 0.01669),
    Sketcher.Constraint("Distance", 21, 0.01618),
    Sketcher.Constraint("DistanceX", 1, 2, -1, 1, 3.098982),
    Sketcher.Constraint("DistanceX", 2, 2, -1, 1, 3.120711),
    Sketcher.Constraint("DistanceY", -1, 1, 3, 2, 4.501668),
    Sketcher.Constraint("DistanceY", -1, 1, 4, 2, 4.477741),
    Sketcher.Constraint("DistanceY", -1, 1, 11, 2, 0.158239),
    Sketcher.Constraint("DistanceX", 12, 2, -1, 1, 3.066632),
    Sketcher.Constraint("DistanceY", -1, 1, 18, 2, 0.18843),
    Sketcher.Constraint("DistanceX", 20, 2, -1, 1, 0.151309),
    Sketcher.Constraint("DistanceX", 7, 2, 4, 2, 0.00235),
    Sketcher.Constraint("DistanceY", 8, 2, 7, 2, 0.024122),
    Sketcher.Constraint("DistanceX", 9, 2, 10, 2, 0.016192),
    Sketcher.Constraint("DistanceX", 12, 2, 16, 2, 2.856379),
])
pocket8 = body.newObject("PartDesign::Pocket", "Pocket007")
pocket8.Profile = sketch10
pocket8.Length = 0.6

doc.recompute()
